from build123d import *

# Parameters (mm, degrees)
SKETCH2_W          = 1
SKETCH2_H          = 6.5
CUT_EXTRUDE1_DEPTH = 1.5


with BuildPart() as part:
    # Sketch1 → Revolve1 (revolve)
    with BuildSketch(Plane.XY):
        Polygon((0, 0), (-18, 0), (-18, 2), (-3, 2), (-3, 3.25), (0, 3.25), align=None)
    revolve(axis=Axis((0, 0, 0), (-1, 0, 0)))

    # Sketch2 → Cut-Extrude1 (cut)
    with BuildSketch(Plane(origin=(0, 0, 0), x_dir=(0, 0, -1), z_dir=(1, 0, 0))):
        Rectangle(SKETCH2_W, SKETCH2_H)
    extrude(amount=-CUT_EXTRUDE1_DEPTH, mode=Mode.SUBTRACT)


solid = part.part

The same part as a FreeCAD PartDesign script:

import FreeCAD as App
import Part
import Sketcher

V = App.Vector


def add_polygon(sketch, points):
    """Adds a closed chain of lines whose ends are joined by coincident constraints."""
    first, n = sketch.GeometryCount, len(points)
    for a, b in zip(points, points[1:] + points[:1]):
        sketch.addGeometry(Part.LineSegment(App.Vector(*a, 0), App.Vector(*b, 0)), False)
    for i in range(n):
        sketch.addConstraint(Sketcher.Constraint("Coincident", first + i, 2, first + (i + 1) % n, 1))

doc = App.newDocument("Part")
params = doc.addObject("Spreadsheet::Sheet", "Params")
for row, (alias, value) in enumerate([
    ("sketch1_width", "18 mm"),
    ("sketch1_width2", "3 mm"),
    ("sketch1_height", "2 mm"),
    ("sketch1_height2", "3.25 mm"),
    ("revolution_angle", "360 deg"),
    ("sketch2_height", "1 mm"),
    ("sketch2_width", "6.5 mm"),
    ("pocket1_length", "1.5 mm"),
], start=1):
    params.set(f"A{row}", alias)
    params.set(f"B{row}", "=" + value)
    params.setAlias(f"B{row}", alias)

body = doc.addObject("PartDesign::Body", "Body")

# Sketch on XY plane
sketch1 = body.newObject("Sketcher::SketchObject", "Sketch")
sketch1.AttachmentSupport = (doc.getObject("XY_Plane"), [""])
sketch1.MapMode = "FlatFace"
add_polygon(sketch1, [(-18, 0), (0, 0), (0, 3.25), (-3, 3.25), (-3, 2), (-18, 2)])  # lines 0-5
sketch1.addConstraint(Sketcher.Constraint("Horizontal", 0))
sketch1.addConstraint(Sketcher.Constraint("Vertical", 1))
sketch1.addConstraint(Sketcher.Constraint("Horizontal", 2))
sketch1.addConstraint(Sketcher.Constraint("Vertical", 3))
sketch1.addConstraint(Sketcher.Constraint("Horizontal", 4))
sketch1.addConstraint(Sketcher.Constraint("Vertical", 5))
sketch1.addConstraint(Sketcher.Constraint("Coincident", 0, 2, -1, 1))
sketch1.addConstraint(Sketcher.Constraint("DistanceX", 0, 1, 0, 2, 18.0))
sketch1.addConstraint(Sketcher.Constraint("DistanceX", 2, 2, 2, 1, 3.0))
sketch1.addConstraint(Sketcher.Constraint("DistanceY", 5, 2, 5, 1, 2.0))
sketch1.addConstraint(Sketcher.Constraint("DistanceY", 1, 1, 1, 2, 3.25))
sketch1.setExpression("Constraints[13]", "Params.sketch1_width")
sketch1.setExpression("Constraints[14]", "Params.sketch1_width2")
sketch1.setExpression("Constraints[15]", "Params.sketch1_height")
sketch1.setExpression("Constraints[16]", "Params.sketch1_height2")
revolution = body.newObject("PartDesign::Revolution", "Revolution")
revolution.Profile = sketch1
revolution.ReferenceAxis = (sketch1, ["H_Axis"])
revolution.setExpression("Angle", "Params.revolution_angle")

# Sketch on YZ plane
sketch2 = body.newObject("Sketcher::SketchObject", "Sketch001")
sketch2.AttachmentSupport = (doc.getObject("YZ_Plane"), [""])
sketch2.MapMode = "FlatFace"
add_polygon(sketch2, [(3.25, 0.5), (-3.25, 0.5), (-3.25, -0.5), (3.25, -0.5)])  # lines 0-3
sketch2.addConstraint(Sketcher.Constraint("Horizontal", 0))
sketch2.addConstraint(Sketcher.Constraint("Vertical", 1))
sketch2.addConstraint(Sketcher.Constraint("Horizontal", 2))
sketch2.addConstraint(Sketcher.Constraint("Vertical", 3))
sketch2.addConstraint(Sketcher.Constraint("Symmetric", 0, 2, 2, 2, -1, 1))
sketch2.addConstraint(Sketcher.Constraint("DistanceY", 1, 2, 1, 1, 1.0))
sketch2.addConstraint(Sketcher.Constraint("DistanceX", 0, 2, 0, 1, 6.5))
sketch2.setExpression("Constraints[9]", "Params.sketch2_height")
sketch2.setExpression("Constraints[10]", "Params.sketch2_width")
pocket1 = body.newObject("PartDesign::Pocket", "Pocket")
pocket1.Profile = sketch2
pocket1.setExpression("Length", "Params.pocket1_length")

doc.recompute()
